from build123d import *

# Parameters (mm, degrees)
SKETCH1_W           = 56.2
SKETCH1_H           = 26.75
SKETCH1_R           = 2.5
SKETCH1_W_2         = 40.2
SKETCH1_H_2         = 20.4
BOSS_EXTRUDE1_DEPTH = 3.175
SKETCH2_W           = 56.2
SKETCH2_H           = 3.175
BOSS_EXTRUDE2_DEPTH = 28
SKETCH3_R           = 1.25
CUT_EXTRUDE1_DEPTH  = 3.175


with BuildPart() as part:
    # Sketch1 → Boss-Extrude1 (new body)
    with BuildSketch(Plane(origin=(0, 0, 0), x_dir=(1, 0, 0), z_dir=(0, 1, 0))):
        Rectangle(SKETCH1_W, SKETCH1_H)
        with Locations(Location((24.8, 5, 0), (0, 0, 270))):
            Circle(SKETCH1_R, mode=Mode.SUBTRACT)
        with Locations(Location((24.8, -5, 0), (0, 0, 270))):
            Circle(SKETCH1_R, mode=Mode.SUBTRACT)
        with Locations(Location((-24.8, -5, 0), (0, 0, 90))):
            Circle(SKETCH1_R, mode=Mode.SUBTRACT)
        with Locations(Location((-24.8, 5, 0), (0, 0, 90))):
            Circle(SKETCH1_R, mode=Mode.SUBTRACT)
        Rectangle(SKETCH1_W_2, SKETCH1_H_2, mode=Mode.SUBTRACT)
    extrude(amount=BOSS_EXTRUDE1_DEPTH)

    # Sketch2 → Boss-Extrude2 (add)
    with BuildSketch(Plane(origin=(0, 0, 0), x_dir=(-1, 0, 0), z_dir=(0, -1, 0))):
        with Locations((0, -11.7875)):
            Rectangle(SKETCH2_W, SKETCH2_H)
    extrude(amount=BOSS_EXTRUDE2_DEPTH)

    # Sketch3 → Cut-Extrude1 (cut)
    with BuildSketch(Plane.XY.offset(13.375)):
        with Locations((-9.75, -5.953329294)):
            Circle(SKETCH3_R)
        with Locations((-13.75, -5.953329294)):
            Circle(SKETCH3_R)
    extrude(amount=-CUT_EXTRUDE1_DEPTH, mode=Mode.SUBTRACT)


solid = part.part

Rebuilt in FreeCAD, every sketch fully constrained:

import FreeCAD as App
import Part
import Sketcher
from FreeCAD import Vector
Q = App.Units.Quantity


def add_polygon(sketch, points):
    """Adds a closed chain of lines whose ends are joined by coincident constraints."""
    first, n = sketch.GeometryCount, len(points)
    for a, b in zip(points, points[1:] + points[:1]):
        sketch.addGeometry(Part.LineSegment(App.Vector(*a, 0), App.Vector(*b, 0)), False)
    for i in range(n):
        sketch.addConstraint(Sketcher.Constraint("Coincident", first + i, 2, first + (i + 1) % n, 1))

doc = App.newDocument("Part")
body = doc.addObject("PartDesign::Body", "Body")

# Sketch on XZ plane
sketch1 = doc.addObject("Sketcher::SketchObject", "Sketch")
body.addObject(sketch1)
sketch1.AttachmentSupport = (doc.XZ_Plane, [""])
sketch1.MapMode = "FlatFace"
add_polygon(sketch1, [(-28.1, -13.4), (-28.1, 13.4), (28.1, 13.4), (28.1, -13.4)])  # lines 0-3
sketch1.addGeometry(Part.Circle(Vector(-24.8, 5, 0), Vector(0, 0, 1), 2.5), False)  # 4
sketch1.addGeometry(Part.Circle(Vector(24.8, 5, 0), Vector(0, 0, 1), 2.5), False)  # 5
sketch1.addGeometry(Part.Circle(Vector(-24.8, -5, 0), Vector(0, 0, 1), 2.5), False)  # 6
add_polygon(sketch1, [(20.1, 10.2), (-20.1, 10.2), (-20.1, -10.2), (20.1, -10.2)])  # lines 7-10
sketch1.addGeometry(Part.Circle(Vector(24.8, -5, 0), Vector(0, 0, 1), 2.5), False)  # 11
sketch1.addConstraint(Sketcher.Constraint("Vertical", 0))
sketch1.addConstraint(Sketcher.Constraint("Horizontal", 1))
sketch1.addConstraint(Sketcher.Constraint("Vertical", 2))
sketch1.addConstraint(Sketcher.Constraint("Horizontal", 3))
sketch1.addConstraint(Sketcher.Constraint("Horizontal", 7))
sketch1.addConstraint(Sketcher.Constraint("Vertical", 8))
sketch1.addConstraint(Sketcher.Constraint("Horizontal", 9))
sketch1.addConstraint(Sketcher.Constraint("Vertical", 10))
sketch1.addConstraint(Sketcher.Constraint("Equal", 4, 5))
sketch1.addConstraint(Sketcher.Constraint("Equal", 5, 6))
sketch1.addConstraint(Sketcher.Constraint("Equal", 6, 11))
sketch1.addConstraint(Sketcher.Constraint("Symmetric", 5, 3, 6, 3, -1, 1))
sketch1.addConstraint(Sketcher.Constraint("Symmetric", 4, 3, 11, 3, -1, 1))
sketch1.addConstraint(Sketcher.Constraint("Symmetric", 0, 2, 2, 2, -1, 1))
sketch1.addConstraint(Sketcher.Constraint("Symmetric", 7, 2, 9, 2, -1, 1))
sketch1.addConstraint(Sketcher.Constraint("Symmetric", 4, 3, 5, 3, -2))
sketch1.addConstraint(Sketcher.Constraint("Diameter", 4, Q("5 mm")))
sketch1.addConstraint(Sketcher.Constraint("DistanceX", 1, 1, 1, 2, Q("56.2 mm")))
sketch1.addConstraint(Sketcher.Constraint("DistanceX", 7, 2, 7, 1, Q("40.2 mm")))
sketch1.addConstraint(Sketcher.Constraint("DistanceY", 8, 2, 8, 1, Q("20.4 mm")))
sketch1.addConstraint(Sketcher.Constraint("DistanceY", -1, 1, 4, 3, Q("5 mm")))
sketch1.addConstraint(Sketcher.Constraint("DistanceY", 0, 1, 0, 2, Q("26.75 mm")))
sketch1.addConstraint(Sketcher.Constraint("DistanceX", 4, 3, -1, 1, Q("24.8 mm")))
pad1 = doc.addObject("PartDesign::Pad", "Pad")
body.addObject(pad1)
pad1.Profile = sketch1
pad1.Length = 3.175
pad1.Reversed = True

# Sketch on XZ plane
sketch2 = doc.addObject("Sketcher::SketchObject", "Sketch001")
body.addObject(sketch2)
sketch2.AttachmentSupport = (doc.XZ_Plane, [""])
sketch2.MapMode = "FlatFace"
add_polygon(sketch2, [(28.1, 10.2), (28.1, 13.4), (-28.1, 13.4), (-28.1, 10.2)])  # lines 0-3
sketch2.addConstraint(Sketcher.Constraint("Vertical", 0))
sketch2.addConstraint(Sketcher.Constraint("Horizontal", 1))
sketch2.addConstraint(Sketcher.Constraint("Vertical", 2))
sketch2.addConstraint(Sketcher.Constraint("Horizontal", 3))
sketch2.addConstraint(Sketcher.Constraint("DistanceX", 1, 2, 1, 1, Q("56.2 mm")))
sketch2.addConstraint(Sketcher.Constraint("DistanceX", -1, 1, 0, 2, Q("28.1 mm")))
sketch2.addConstraint(Sketcher.Constraint("DistanceY", -1, 1, 2, 2, Q("10.2 mm")))
sketch2.addConstraint(Sketcher.Constraint("DistanceY", 0, 1, 0, 2, Q("3.175 mm")))
pad2 = doc.addObject("PartDesign::Pad", "Pad001")
body.addObject(pad2)
pad2.Profile = sketch2
pad2.Length = 28

# Sketch on XY plane
sketch3 = doc.addObject("Sketcher::SketchObject", "Sketch002")
body.addObject(sketch3)
sketch3.AttachmentSupport = (doc.XY_Plane, [""])
sketch3.MapMode = "FlatFace"
sketch3.AttachmentOffset = App.Placement(Vector(0, 0, 13.375), App.Rotation())
sketch3.addGeometry(Part.Circle(Vector(-9.8, -6, 0), Vector(0, 0, 1), 1.2), False)
sketch3.addGeometry(Part.Circle(Vector(-13.8, -6, 0), Vector(0, 0, 1), 1.2), False)
sketch3.addConstraint(Sketcher.Constraint("Equal", 0, 1))
sketch3.addConstraint(Sketcher.Constraint("Horizontal", 0, 3, 1, 3))
sketch3.addConstraint(Sketcher.Constraint("Diameter", 0, Q("2.5 mm")))
sketch3.addConstraint(Sketcher.Constraint("DistanceX", 1, 3, 0, 3, Q("4 mm")))
sketch3.addConstraint(Sketcher.Constraint("DistanceX", 0, 3, -1, 1, Q("9.75 mm")))
sketch3.addConstraint(Sketcher.Constraint("DistanceY", 0, 3, -1, 1, Q("5.953329 mm")))
pocket1 = doc.addObject("PartDesign::Pocket", "Pocket")
body.addObject(pocket1)
pocket1.Profile = sketch3
pocket1.Length = 3.175

doc.recompute()
